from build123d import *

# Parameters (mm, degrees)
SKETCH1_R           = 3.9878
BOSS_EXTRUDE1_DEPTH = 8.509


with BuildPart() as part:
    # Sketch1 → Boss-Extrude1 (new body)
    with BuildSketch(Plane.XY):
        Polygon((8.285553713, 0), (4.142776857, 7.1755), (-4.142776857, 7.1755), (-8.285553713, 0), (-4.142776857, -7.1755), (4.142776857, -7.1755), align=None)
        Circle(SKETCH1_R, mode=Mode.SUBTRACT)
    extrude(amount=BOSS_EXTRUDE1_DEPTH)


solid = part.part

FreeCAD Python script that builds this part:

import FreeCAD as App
import Part
import Sketcher
Q = App.Units.Quantity


def add_polygon(sketch, points):
    """Adds a closed chain of lines whose ends are joined by coincident constraints."""
    first, n = sketch.GeometryCount, len(points)
    for a, b in zip(points, points[1:] + points[:1]):
        sketch.addGeometry(Part.LineSegment(App.Vector(*a, 0), App.Vector(*b, 0)), False)
    for i in range(n):
        sketch.addConstraint(Sketcher.Constraint("Coincident", first + i, 2, first + (i + 1) % n, 1))

doc = App.newDocument("Part")
body = doc.addObject("PartDesign::Body", "Body")

# Sketch on XY plane
sketch1 = body.newObject("Sketcher::SketchObject", "Sketch")
sketch1.AttachmentSupport = (doc.getObject("XY_Plane"), [""])
sketch1.MapMode = "FlatFace"
add_polygon(sketch1, [(8.3, 0), (4.1, 7.2), (-4.1, 7.2), (-8.3, 0), (-4.1, -7.2), (4.1, -7.2)])  # lines 0-5
sketch1.addGeometry(Part.Circle(App.Vector(0, 0, 0), App.Vector(0, 0, 1), 4), False)  # 6
sketch1.addConstraint(Sketcher.Constraint("Horizontal", 1))
sketch1.addConstraint(Sketcher.Constraint("Horizontal", 4))
sketch1.addConstraint(Sketcher.Constraint("Coincident", 6, 3, -1, 1))
sketch1.addConstraint(Sketcher.Constraint("Symmetric", 0, 2, 3, 2, -1, 1))
sketch1.addConstraint(Sketcher.Constraint("Symmetric", 2, 2, 5, 2, -1, 1))
sketch1.addConstraint(Sketcher.Constraint("PointOnObject", 2, 2, -1))
sketch1.addConstraint(Sketcher.Constraint("Parallel", 2, 5))
sketch1.addConstraint(Sketcher.Constraint("Vertical", 1, 2, 3, 2))
sketch1.addConstraint(Sketcher.Constraint("Diameter", 6, Q("0.314 in")))
sketch1.addConstraint(Sketcher.Constraint("Angle", 0, Q("120 deg")))
sketch1.addConstraint(Sketcher.Constraint("DistanceY", 3, 2, 1, 2, Q("0.565 in")))
sketch1.addConstraint(Sketcher.Constraint("DistanceX", 1, 2, 1, 1, Q("8.285554 mm")))
pad1 = body.newObject("PartDesign::Pad", "Pad")
pad1.Profile = sketch1
pad1.Length = Q("0.335 in")

doc.recompute()
